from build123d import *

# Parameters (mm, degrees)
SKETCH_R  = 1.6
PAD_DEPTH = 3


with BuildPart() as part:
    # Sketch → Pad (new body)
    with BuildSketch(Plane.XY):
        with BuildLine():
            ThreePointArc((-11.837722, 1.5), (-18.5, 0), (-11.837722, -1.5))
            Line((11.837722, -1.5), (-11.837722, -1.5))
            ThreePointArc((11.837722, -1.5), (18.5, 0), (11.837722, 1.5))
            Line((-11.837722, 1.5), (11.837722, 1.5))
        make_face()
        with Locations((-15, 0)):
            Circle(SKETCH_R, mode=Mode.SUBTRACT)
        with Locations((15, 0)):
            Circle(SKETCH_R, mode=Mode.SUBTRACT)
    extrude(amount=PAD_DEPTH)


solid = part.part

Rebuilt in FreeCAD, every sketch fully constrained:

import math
import FreeCAD as App
import Part
import Sketcher
from FreeCAD import Vector

doc = App.newDocument("Part")
body = doc.addObject("PartDesign::Body", "Body")

# Sketch on XY plane
sketch1 = body.newObject("Sketcher::SketchObject", "Sketch")
sketch1.AttachmentSupport = (doc.getObject("XY_Plane"), [""])
sketch1.MapMode = "FlatFace"
sketch1.addGeometry([
    Part.ArcOfCircle(Part.Circle(Vector(-15, 0, 0), Vector(0, 0, 1), 3.5), math.radians(25), math.radians(335)),  # 0
    Part.LineSegment(Vector(-11.8, -1.5, 0), Vector(11.8, -1.5, 0)),  # 1
    Part.ArcOfCircle(Part.Circle(Vector(15, 0, 0), Vector(0, 0, 1), 3.5), math.radians(-155), math.radians(155)),  # 2
    Part.LineSegment(Vector(11.8, 1.5, 0), Vector(-11.8, 1.5, 0)),  # 3
    Part.Circle(Vector(-15, 0, 0), Vector(0, 0, 1), 1.6),  # 4
    Part.Circle(Vector(15, 0, 0), Vector(0, 0, 1), 1.6),  # 5
], False)
sketch1.addConstraint([
    Sketcher.Constraint("Coincident", 0, 2, 1, 1),
    Sketcher.Constraint("Coincident", 1, 2, 2, 1),
    Sketcher.Constraint("Coincident", 2, 2, 3, 1),
    Sketcher.Constraint("Coincident", 3, 2, 0, 1),
    Sketcher.Constraint("Horizontal", 1),
    Sketcher.Constraint("Horizontal", 3),
    Sketcher.Constraint("Coincident", 4, 3, 0, 3),
    Sketcher.Constraint("Coincident", 5, 3, 2, 3),
    Sketcher.Constraint("Equal", 0, 2),
    Sketcher.Constraint("Equal", 4, 5),
    Sketcher.Constraint("Symmetric", 0, 3, 2, 3, -1, 1),
    Sketcher.Constraint("Symmetric", 1, 2, 2, 2, -1),
    Sketcher.Constraint("Diameter", 4, 3.2),
    Sketcher.Constraint("Radius", 0, 3.5),
    Sketcher.Constraint("DistanceX", 0, 3, -1, 1, 15.0),
    Sketcher.Constraint("DistanceY", 1, 2, 2, 2, 3.0),
])
pad1 = body.newObject("PartDesign::Pad", "Pad")
pad1.Profile = sketch1
pad1.Length = 3

doc.recompute()
